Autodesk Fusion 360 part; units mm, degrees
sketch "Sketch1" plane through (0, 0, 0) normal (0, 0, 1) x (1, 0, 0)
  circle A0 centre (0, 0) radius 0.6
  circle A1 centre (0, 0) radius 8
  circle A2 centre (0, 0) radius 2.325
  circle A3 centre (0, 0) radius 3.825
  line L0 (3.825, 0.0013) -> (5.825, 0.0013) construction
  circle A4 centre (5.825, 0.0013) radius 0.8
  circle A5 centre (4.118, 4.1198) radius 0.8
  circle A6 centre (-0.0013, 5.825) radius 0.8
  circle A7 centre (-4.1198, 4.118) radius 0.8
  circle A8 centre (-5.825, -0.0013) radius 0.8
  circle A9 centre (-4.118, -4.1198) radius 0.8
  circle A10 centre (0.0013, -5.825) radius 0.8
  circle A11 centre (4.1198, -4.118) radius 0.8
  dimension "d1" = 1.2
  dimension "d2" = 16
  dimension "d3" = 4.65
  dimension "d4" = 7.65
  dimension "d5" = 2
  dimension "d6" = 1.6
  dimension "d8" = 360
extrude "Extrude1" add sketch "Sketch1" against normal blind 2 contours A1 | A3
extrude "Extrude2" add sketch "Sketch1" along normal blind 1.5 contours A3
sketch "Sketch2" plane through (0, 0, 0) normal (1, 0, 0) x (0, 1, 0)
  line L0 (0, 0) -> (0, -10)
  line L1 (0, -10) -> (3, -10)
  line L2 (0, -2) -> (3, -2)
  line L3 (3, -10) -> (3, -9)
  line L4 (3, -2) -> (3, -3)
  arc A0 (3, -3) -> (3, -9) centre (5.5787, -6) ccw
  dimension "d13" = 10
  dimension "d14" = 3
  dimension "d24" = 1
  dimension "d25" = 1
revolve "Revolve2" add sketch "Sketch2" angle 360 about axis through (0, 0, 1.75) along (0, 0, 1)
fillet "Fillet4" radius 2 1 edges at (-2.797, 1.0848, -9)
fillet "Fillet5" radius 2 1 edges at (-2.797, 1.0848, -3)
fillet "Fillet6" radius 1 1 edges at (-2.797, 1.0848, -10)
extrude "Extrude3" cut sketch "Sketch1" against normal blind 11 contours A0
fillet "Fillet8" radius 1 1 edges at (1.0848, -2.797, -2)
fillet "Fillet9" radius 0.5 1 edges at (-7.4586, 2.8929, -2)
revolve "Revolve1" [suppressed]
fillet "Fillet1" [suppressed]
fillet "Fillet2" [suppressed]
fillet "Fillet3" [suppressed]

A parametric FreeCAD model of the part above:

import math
import FreeCAD as App
import Part
import Sketcher
from FreeCAD import Vector


def edges_at(feature, points):
    """Names of the edges that pass closest to the given points."""
    edges = feature.Shape.Edges
    near = lambda p: min(range(len(edges)), key=lambda i: edges[i].distToShape(Part.Vertex(*p))[0])
    return sorted({f"Edge{near(p) + 1}" for p in points})

doc = App.newDocument("Part")
body = doc.addObject("PartDesign::Body", "Body")

# Sketch on XY plane
sketch1 = body.newObject("Sketcher::SketchObject", "Sketch")
sketch1.AttachmentSupport = (doc.getObject("XY_Plane"), [""])
sketch1.MapMode = "FlatFace"
sketch1.addGeometry([
    Part.Circle(Vector(0, 0, 0), Vector(0, 0, 1), 8),  # 0
    Part.Circle(Vector(-4.118, -4.1198, 0), Vector(0, 0, 1), 0.8),  # 1
    Part.Circle(Vector(-5.825, -0.0013, 0), Vector(0, 0, 1), 0.8),  # 2
    Part.Circle(Vector(0.0013, -5.825, 0), Vector(0, 0, 1), 0.8),  # 3
    Part.Circle(Vector(4.1198, -4.118, 0), Vector(0, 0, 1), 0.8),  # 4
    Part.Circle(Vector(-4.1198, 4.118, 0), Vector(0, 0, 1), 0.8),  # 5
    Part.Circle(Vector(-0.0013, 5.825, 0), Vector(0, 0, 1), 0.8),  # 6
    Part.Circle(Vector(5.825, 0.0013, 0), Vector(0, 0, 1), 0.8),  # 7
    Part.Circle(Vector(4.118, 4.1198, 0), Vector(0, 0, 1), 0.8),  # 8
    Part.Circle(Vector(0, 0, 0), Vector(0, 0, 1), 2.325),  # 9
], False)
sketch1.addConstraint([
    Sketcher.Constraint("Coincident", 0, 3, -1, 1),
    Sketcher.Constraint("Coincident", 9, 3, -1, 1),
    Sketcher.Constraint("Equal", 1, 2),
    Sketcher.Constraint("Equal", 2, 3),
    Sketcher.Constraint("Equal", 3, 4),
    Sketcher.Constraint("Equal", 4, 5),
    Sketcher.Constraint("Equal", 5, 6),
    Sketcher.Constraint("Equal", 6, 7),
    Sketcher.Constraint("Equal", 7, 8),
    Sketcher.Constraint("Symmetric", 4, 3, 5, 3, -1, 1),
    Sketcher.Constraint("Symmetric", 3, 3, 6, 3, -1, 1),
    Sketcher.Constraint("Symmetric", 2, 3, 7, 3, -1, 1),
    Sketcher.Constraint("Symmetric", 1, 3, 8, 3, -1, 1),
    Sketcher.Constraint("Diameter", 0, 16.0),
    Sketcher.Constraint("Diameter", 1, 1.6),
    Sketcher.Constraint("Diameter", 9, 4.65),
    Sketcher.Constraint("DistanceX", 1, 3, -1, 1, 4.118),
    Sketcher.Constraint("DistanceX", 2, 3, -1, 1, 5.825),
    Sketcher.Constraint("DistanceY", 3, 3, -1, 1, 5.825),
    Sketcher.Constraint("DistanceY", 4, 3, -1, 1, 4.118),
    Sketcher.Constraint("DistanceX", 5, 3, 3, 3, 4.121),
    Sketcher.Constraint("DistanceY", 1, 3, -1, 1, 4.1198),
    Sketcher.Constraint("DistanceY", 2, 3, -1, 1, 0.0013),
    Sketcher.Constraint("DistanceX", -1, 1, 3, 3, 0.0013),
])
pad1 = body.newObject("PartDesign::Pad", "Pad")
pad1.Profile = sketch1
pad1.Length = 2
pad1.Reversed = True

# Sketch on XY plane
sketch2 = body.newObject("Sketcher::SketchObject", "Sketch001")
sketch2.AttachmentSupport = (doc.getObject("XY_Plane"), [""])
sketch2.MapMode = "FlatFace"
sketch2.addGeometry([
    Part.Circle(Vector(0, 0, 0), Vector(0, 0, 1), 3.825),
    Part.Circle(Vector(0, 0, 0), Vector(0, 0, 1), 2.325),
], False)
sketch2.addConstraint([
    Sketcher.Constraint("Coincident", 0, 3, -1, 1),
    Sketcher.Constraint("Coincident", 1, 3, -1, 1),
    Sketcher.Constraint("Diameter", 0, 7.65),
    Sketcher.Constraint("Diameter", 1, 4.65),
])
pad2 = body.newObject("PartDesign::Pad", "Pad001")
pad2.Profile = sketch2
pad2.Length = 1.5

# Sketch on YZ plane
sketch3 = body.newObject("Sketcher::SketchObject", "Sketch002")
sketch3.AttachmentSupport = (doc.getObject("YZ_Plane"), [""])
sketch3.MapMode = "FlatFace"
sketch3.addGeometry([
    Part.LineSegment(Vector(3, -2, 0), Vector(0, -2, 0)),  # 0
    Part.LineSegment(Vector(0, -2, 0), Vector(0, -10, 0)),  # 1
    Part.LineSegment(Vector(0, -10, 0), Vector(3, -10, 0)),  # 2
    Part.LineSegment(Vector(3, -10, 0), Vector(3, -9, 0)),  # 3
    Part.ArcOfCircle(Part.Circle(Vector(5.5787, -6, 0), Vector(0, 0, 1), 3.955969), math.radians(130.681256), math.radians(229.318744)),  # 4
    Part.LineSegment(Vector(3, -3, 0), Vector(3, -2, 0)),  # 5
], False)
sketch3.addConstraint([
    Sketcher.Constraint("Coincident", 0, 2, 1, 1),
    Sketcher.Constraint("Coincident", 1, 2, 2, 1),
    Sketcher.Constraint("Coincident", 2, 2, 3, 1),
    Sketcher.Constraint("Coincident", 3, 2, 4, 2),
    Sketcher.Constraint("Coincident", 4, 1, 5, 1),
    Sketcher.Constraint("Coincident", 5, 2, 0, 1),
    Sketcher.Constraint("Horizontal", 0),
    Sketcher.Constraint("Vertical", 1),
    Sketcher.Constraint("Horizontal", 2),
    Sketcher.Constraint("Vertical", 3),
    Sketcher.Constraint("Vertical", 5),
    Sketcher.Constraint("PointOnObject", 0, 2, -2),
    Sketcher.Constraint("Vertical", 3, 2, 4, 1),
    Sketcher.Constraint("Equal", 3, 5),
    Sketcher.Constraint("DistanceX", 0, 2, 0, 1, 3.0),
    Sketcher.Constraint("DistanceY", 3, 1, 3, 2, 1.0),
    Sketcher.Constraint("DistanceY", 1, 2, -1, 1, 10.0),
    Sketcher.Constraint("DistanceY", 4, 1, -1, 1, 3.0),
    Sketcher.Constraint("Radius", 4, 3.956),
])
revolution = body.newObject("PartDesign::Revolution", "Revolution")
revolution.Profile = sketch3
revolution.ReferenceAxis = (sketch3, ["V_Axis"])
revolution.Angle = 360
doc.recompute()

fillet = body.newObject("PartDesign::Fillet", "Fillet")
fillet.Base = (revolution, edges_at(revolution, [(-2.797, 1.085, -9)]))
fillet.Radius = 2
doc.recompute()

fillet2 = body.newObject("PartDesign::Fillet", "Fillet001")
fillet2.Base = (fillet, edges_at(fillet, [(-2.797, 1.085, -3)]))
fillet2.Radius = 2
doc.recompute()

fillet3 = body.newObject("PartDesign::Fillet", "Fillet002")
fillet3.Base = (fillet2, edges_at(fillet2, [(-2.797, 1.085, -10)]))
fillet3.Radius = 1

# Sketch on XY plane
sketch4 = body.newObject("Sketcher::SketchObject", "Sketch003")
sketch4.AttachmentSupport = (doc.getObject("XY_Plane"), [""])
sketch4.MapMode = "FlatFace"
sketch4.addGeometry(Part.Circle(Vector(0, 0, 0), Vector(0, 0, 1), 0.6), False)
sketch4.addConstraint([
    Sketcher.Constraint("Coincident", 0, 3, -1, 1),
    Sketcher.Constraint("Diameter", 0, 1.2),
])
pocket1 = body.newObject("PartDesign::Pocket", "Pocket")
pocket1.Profile = sketch4
pocket1.Length = 11
doc.recompute()

fillet4 = body.newObject("PartDesign::Fillet", "Fillet003")
fillet4.Base = (pocket1, edges_at(pocket1, [(1.085, -2.797, -2)]))
fillet4.Radius = 1
doc.recompute()

fillet5 = body.newObject("PartDesign::Fillet", "Fillet004")
fillet5.Base = (fillet4, edges_at(fillet4, [(-7.459, 2.893, -2)]))
fillet5.Radius = 0.5

doc.recompute()
